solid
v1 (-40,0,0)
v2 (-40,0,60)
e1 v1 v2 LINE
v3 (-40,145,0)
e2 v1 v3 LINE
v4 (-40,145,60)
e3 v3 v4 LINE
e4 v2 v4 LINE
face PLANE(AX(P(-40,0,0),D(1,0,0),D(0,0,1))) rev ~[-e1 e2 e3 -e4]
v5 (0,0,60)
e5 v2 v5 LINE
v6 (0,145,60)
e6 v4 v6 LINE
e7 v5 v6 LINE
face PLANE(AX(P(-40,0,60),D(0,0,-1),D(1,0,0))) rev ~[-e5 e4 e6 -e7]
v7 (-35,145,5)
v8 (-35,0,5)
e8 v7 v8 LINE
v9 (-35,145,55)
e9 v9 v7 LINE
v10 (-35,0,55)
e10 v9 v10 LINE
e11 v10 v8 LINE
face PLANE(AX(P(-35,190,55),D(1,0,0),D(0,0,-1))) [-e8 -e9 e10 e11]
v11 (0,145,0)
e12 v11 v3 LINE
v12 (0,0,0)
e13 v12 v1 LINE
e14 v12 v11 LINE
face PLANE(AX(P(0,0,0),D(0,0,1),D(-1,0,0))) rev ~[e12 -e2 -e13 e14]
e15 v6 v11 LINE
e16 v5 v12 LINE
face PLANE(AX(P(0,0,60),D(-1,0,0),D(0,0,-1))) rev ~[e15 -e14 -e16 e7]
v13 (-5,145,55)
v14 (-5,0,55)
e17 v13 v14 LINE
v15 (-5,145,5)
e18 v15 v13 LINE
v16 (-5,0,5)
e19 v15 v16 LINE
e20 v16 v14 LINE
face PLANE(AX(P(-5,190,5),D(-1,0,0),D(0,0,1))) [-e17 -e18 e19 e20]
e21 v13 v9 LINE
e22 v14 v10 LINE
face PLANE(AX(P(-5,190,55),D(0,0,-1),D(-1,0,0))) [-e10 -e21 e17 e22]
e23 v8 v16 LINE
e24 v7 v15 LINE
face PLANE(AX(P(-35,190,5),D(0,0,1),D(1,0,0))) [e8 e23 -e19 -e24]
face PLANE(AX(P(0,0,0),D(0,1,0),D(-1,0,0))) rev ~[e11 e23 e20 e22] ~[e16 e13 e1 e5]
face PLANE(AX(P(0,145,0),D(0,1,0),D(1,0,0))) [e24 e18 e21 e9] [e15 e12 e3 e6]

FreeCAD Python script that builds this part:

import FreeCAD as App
import Part
import Sketcher


def add_polygon(sketch, points):
    """Adds a closed chain of lines whose ends are joined by coincident constraints."""
    first, n = sketch.GeometryCount, len(points)
    for a, b in zip(points, points[1:] + points[:1]):
        sketch.addGeometry(Part.LineSegment(App.Vector(*a, 0), App.Vector(*b, 0)), False)
    for i in range(n):
        sketch.addConstraint(Sketcher.Constraint("Coincident", first + i, 2, first + (i + 1) % n, 1))

doc = App.newDocument("Part")
body = doc.addObject("PartDesign::Body", "Body")

# Sketch on XZ plane
sketch1 = body.newObject("Sketcher::SketchObject", "Sketch")
sketch1.AttachmentSupport = (doc.getObject("XZ_Plane"), [""])
sketch1.MapMode = "FlatFace"
add_polygon(sketch1, [(0, 60), (0, 0), (-40, 0), (-40, 60)])  # lines 0-3
sketch1.addConstraint(Sketcher.Constraint("Vertical", 0))
sketch1.addConstraint(Sketcher.Constraint("Horizontal", 1))
sketch1.addConstraint(Sketcher.Constraint("Vertical", 2))
sketch1.addConstraint(Sketcher.Constraint("Horizontal", 3))
sketch1.addConstraint(Sketcher.Constraint("Coincident", 0, 2, -1, 1))
sketch1.addConstraint(Sketcher.Constraint("DistanceX", 1, 2, 1, 1, 40.0))
sketch1.addConstraint(Sketcher.Constraint("DistanceY", 0, 2, 0, 1, 60.0))
pad1 = body.newObject("PartDesign::Pad", "Pad")
pad1.Profile = sketch1
pad1.Length = 190
pad1.Reversed = True

# Sketch on XZ plane
sketch2 = body.newObject("Sketcher::SketchObject", "Sketch001")
sketch2.AttachmentSupport = (doc.getObject("XZ_Plane"), [""])
sketch2.MapMode = "FlatFace"
sketch2.AttachmentOffset = App.Placement(App.Vector(0, 0, -190), App.Rotation())
add_polygon(sketch2, [(-5, 5), (-35, 5), (-35, 55), (-5, 55)])  # lines 0-3
sketch2.addConstraint(Sketcher.Constraint("Horizontal", 0))
sketch2.addConstraint(Sketcher.Constraint("Vertical", 1))
sketch2.addConstraint(Sketcher.Constraint("Horizontal", 2))
sketch2.addConstraint(Sketcher.Constraint("Vertical", 3))
sketch2.addConstraint(Sketcher.Constraint("DistanceY", -1, 1, 0, 2, 5.0))
sketch2.addConstraint(Sketcher.Constraint("DistanceX", 2, 2, -1, 1, 5.0))
sketch2.addConstraint(Sketcher.Constraint("DistanceX", 0, 2, 0, 1, 30.0))
sketch2.addConstraint(Sketcher.Constraint("DistanceY", 1, 1, 1, 2, 50.0))
pocket1 = body.newObject("PartDesign::Pocket", "Pocket")
pocket1.Profile = sketch2
pocket1.Type = "ThroughAll"
pocket1.Reversed = True

# Sketch on XZ plane
sketch3 = body.newObject("Sketcher::SketchObject", "Sketch002")
sketch3.AttachmentSupport = (doc.getObject("XZ_Plane"), [""])
sketch3.MapMode = "FlatFace"
sketch3.AttachmentOffset = App.Placement(App.Vector(0, 0, -190), App.Rotation())
add_polygon(sketch3, [(0, 0), (-40, 0), (-40, 60), (0, 60)])  # lines 0-3
add_polygon(sketch3, [(-35, 5), (-5, 5), (-5, 55), (-35, 55)])  # lines 4-7
sketch3.addConstraint(Sketcher.Constraint("Horizontal", 0))
sketch3.addConstraint(Sketcher.Constraint("Vertical", 1))
sketch3.addConstraint(Sketcher.Constraint("Horizontal", 2))
sketch3.addConstraint(Sketcher.Constraint("Vertical", 3))
sketch3.addConstraint(Sketcher.Constraint("Horizontal", 4))
sketch3.addConstraint(Sketcher.Constraint("Vertical", 5))
sketch3.addConstraint(Sketcher.Constraint("Horizontal", 6))
sketch3.addConstraint(Sketcher.Constraint("Vertical", 7))
sketch3.addConstraint(Sketcher.Constraint("Coincident", 3, 2, -1, 1))
sketch3.addConstraint(Sketcher.Constraint("DistanceX", 0, 2, 0, 1, 40.0))
sketch3.addConstraint(Sketcher.Constraint("DistanceX", 4, 1, 4, 2, 30.0))
sketch3.addConstraint(Sketcher.Constraint("DistanceY", 1, 1, 1, 2, 60.0))
sketch3.addConstraint(Sketcher.Constraint("DistanceY", 5, 1, 5, 2, 50.0))
sketch3.addConstraint(Sketcher.Constraint("DistanceX", 4, 2, -1, 1, 5.0))
sketch3.addConstraint(Sketcher.Constraint("DistanceY", -1, 1, 4, 2, 5.0))
pocket2 = body.newObject("PartDesign::Pocket", "Pocket001")
pocket2.Profile = sketch3
pocket2.Length = 45
pocket2.Reversed = True

doc.recompute()
